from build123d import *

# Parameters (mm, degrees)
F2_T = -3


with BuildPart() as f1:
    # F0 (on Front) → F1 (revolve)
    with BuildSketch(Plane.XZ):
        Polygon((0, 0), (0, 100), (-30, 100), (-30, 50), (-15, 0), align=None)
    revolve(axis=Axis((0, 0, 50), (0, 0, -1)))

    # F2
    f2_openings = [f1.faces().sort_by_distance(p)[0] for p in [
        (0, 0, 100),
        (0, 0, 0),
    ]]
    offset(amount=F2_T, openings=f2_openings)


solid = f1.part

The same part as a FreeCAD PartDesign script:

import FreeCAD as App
import Part
import Sketcher
from FreeCAD import Vector


def faces_at(feature, points):
    """Names of the faces that lie closest to the given points."""
    faces = feature.Shape.Faces
    near = lambda p: min(range(len(faces)), key=lambda i: faces[i].distToShape(Part.Vertex(*p))[0])
    return sorted({f"Face{near(p) + 1}" for p in points})

doc = App.newDocument("Part")
body = doc.addObject("PartDesign::Body", "Body")

sketch1 = body.newObject("Sketcher::SketchObject", "Sketch")
sketch1.AttachmentSupport = (doc.getObject("XZ_Plane"), [""])
sketch1.MapMode = "FlatFace"
sketch1.addGeometry(Part.LineSegment(Vector(0, 0, 0), Vector(0, 100, 0)), False)
sketch1.addGeometry(Part.LineSegment(Vector(0, 100, 0), Vector(-30, 100, 0)), False)
sketch1.addGeometry(Part.LineSegment(Vector(-30, 100, 0), Vector(-30, 50, 0)), False)
sketch1.addGeometry(Part.LineSegment(Vector(-30, 50, 0), Vector(-15, 0, 0)), False)
sketch1.addGeometry(Part.LineSegment(Vector(-15, 0, 0), Vector(0, 0, 0)), False)
sketch1.addConstraint(Sketcher.Constraint("Coincident", 0, 2, 1, 1))
sketch1.addConstraint(Sketcher.Constraint("Coincident", 1, 2, 2, 1))
sketch1.addConstraint(Sketcher.Constraint("Coincident", 2, 2, 3, 1))
sketch1.addConstraint(Sketcher.Constraint("Coincident", 3, 2, 4, 1))
sketch1.addConstraint(Sketcher.Constraint("Coincident", 4, 2, 0, 1))
sketch1.addConstraint(Sketcher.Constraint("Vertical", 0))
sketch1.addConstraint(Sketcher.Constraint("Horizontal", 1))
sketch1.addConstraint(Sketcher.Constraint("Vertical", 2))
sketch1.addConstraint(Sketcher.Constraint("Horizontal", 4))
sketch1.addConstraint(Sketcher.Constraint("Coincident", 4, 2, -1, 1))
sketch1.addConstraint(Sketcher.Constraint("DistanceX", 1, 2, 1, 1, 30.0))
sketch1.addConstraint(Sketcher.Constraint("DistanceX", 4, 1, 4, 2, 15.0))
sketch1.addConstraint(Sketcher.Constraint("DistanceY", 0, 1, 0, 2, 100.0))
sketch1.addConstraint(Sketcher.Constraint("DistanceY", 2, 2, 2, 1, 50.0))
revolution = body.newObject("PartDesign::Revolution", "Revolution")
revolution.Profile = sketch1
revolution.ReferenceAxis = (sketch1, ["V_Axis"])
revolution.Angle = 360
doc.recompute()

thickness = body.newObject("PartDesign::Thickness", "Thickness")
thickness.Base = (revolution, faces_at(revolution, [(0, 0, 100), (0, 0, 0)]))
thickness.Value = 3
thickness.Reversed = True
thickness.Join = "Arc"

doc.recompute()
